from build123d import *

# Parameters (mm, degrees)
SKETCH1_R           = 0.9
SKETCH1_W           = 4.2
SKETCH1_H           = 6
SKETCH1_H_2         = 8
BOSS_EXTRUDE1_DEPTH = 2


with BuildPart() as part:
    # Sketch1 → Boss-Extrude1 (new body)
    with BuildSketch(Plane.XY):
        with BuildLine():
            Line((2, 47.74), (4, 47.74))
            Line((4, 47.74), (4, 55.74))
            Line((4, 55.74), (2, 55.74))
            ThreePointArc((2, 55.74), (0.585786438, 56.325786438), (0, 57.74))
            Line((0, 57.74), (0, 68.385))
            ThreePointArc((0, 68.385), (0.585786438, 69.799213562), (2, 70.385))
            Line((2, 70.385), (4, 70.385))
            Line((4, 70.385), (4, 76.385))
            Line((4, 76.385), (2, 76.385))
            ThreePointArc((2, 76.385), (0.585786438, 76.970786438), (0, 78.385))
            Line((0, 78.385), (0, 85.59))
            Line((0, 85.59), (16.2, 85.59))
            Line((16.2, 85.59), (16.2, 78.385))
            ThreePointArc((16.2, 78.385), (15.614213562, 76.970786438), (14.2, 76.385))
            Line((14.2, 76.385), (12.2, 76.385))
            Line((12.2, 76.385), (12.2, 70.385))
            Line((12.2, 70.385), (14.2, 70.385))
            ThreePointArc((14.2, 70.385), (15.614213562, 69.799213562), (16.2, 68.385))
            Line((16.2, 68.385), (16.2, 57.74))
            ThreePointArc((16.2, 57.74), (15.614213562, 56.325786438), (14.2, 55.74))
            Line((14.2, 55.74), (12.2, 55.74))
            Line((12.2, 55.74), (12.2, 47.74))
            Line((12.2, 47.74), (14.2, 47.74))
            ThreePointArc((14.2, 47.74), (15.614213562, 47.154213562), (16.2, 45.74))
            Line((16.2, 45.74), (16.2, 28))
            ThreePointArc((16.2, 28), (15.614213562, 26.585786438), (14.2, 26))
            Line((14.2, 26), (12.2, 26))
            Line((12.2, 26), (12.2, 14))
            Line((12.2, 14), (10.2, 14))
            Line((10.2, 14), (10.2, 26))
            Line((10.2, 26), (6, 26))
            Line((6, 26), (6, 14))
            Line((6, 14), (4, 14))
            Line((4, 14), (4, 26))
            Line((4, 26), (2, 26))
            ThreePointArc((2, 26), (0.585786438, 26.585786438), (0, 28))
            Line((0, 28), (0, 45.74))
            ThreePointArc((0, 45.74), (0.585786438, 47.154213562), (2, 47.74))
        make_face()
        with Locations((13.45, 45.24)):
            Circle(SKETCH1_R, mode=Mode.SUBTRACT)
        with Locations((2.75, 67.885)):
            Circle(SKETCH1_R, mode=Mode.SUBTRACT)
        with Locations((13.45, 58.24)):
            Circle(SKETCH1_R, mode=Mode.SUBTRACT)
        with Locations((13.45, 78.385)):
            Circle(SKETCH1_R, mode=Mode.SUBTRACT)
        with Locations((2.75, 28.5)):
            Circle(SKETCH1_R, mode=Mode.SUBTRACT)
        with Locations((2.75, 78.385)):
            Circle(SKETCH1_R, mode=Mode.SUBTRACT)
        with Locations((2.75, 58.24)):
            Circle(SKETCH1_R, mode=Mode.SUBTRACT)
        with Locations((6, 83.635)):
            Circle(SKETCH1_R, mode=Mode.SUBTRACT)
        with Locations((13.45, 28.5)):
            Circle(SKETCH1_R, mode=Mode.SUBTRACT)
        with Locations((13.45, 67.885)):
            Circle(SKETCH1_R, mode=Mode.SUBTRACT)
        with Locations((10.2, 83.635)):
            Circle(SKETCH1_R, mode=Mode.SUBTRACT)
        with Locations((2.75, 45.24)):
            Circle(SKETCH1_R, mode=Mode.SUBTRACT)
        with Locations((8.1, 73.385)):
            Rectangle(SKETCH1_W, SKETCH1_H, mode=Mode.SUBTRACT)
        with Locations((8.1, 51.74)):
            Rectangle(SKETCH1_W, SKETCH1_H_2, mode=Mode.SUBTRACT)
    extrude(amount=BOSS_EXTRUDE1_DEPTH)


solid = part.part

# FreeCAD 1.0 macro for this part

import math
import FreeCAD as App
import Part
import Sketcher

V = App.Vector

doc = App.newDocument("Part")
body = doc.addObject("PartDesign::Body", "Body")

# Sketch on XY plane
sketch1 = body.newObject("Sketcher::SketchObject", "Sketch")
sketch1.AttachmentSupport = (doc.getObject("XY_Plane"), [""])
sketch1.MapMode = "FlatFace"
sketch1.addGeometry([
    Part.LineSegment(V(4, 47.7, 0), V(2, 47.7, 0)),  # 0
    Part.ArcOfCircle(Part.Circle(V(2, 45.7, 0), V(0, 0, 1), 2), math.radians(90), math.radians(180)),  # 1
    Part.LineSegment(V(0, 45.7, 0), V(0, 28, 0)),  # 2
    Part.ArcOfCircle(Part.Circle(V(2, 28, 0), V(0, 0, 1), 2), math.radians(-180), math.radians(-90)),  # 3
    Part.LineSegment(V(2, 26, 0), V(4, 26, 0)),  # 4
    Part.LineSegment(V(4, 26, 0), V(4, 14, 0)),  # 5
    Part.LineSegment(V(4, 14, 0), V(6, 14, 0)),  # 6
    Part.LineSegment(V(6, 14, 0), V(6, 26, 0)),  # 7
    Part.LineSegment(V(6, 26, 0), V(10.2, 26, 0)),  # 8
    Part.LineSegment(V(10.2, 26, 0), V(10.2, 14, 0)),  # 9
    Part.LineSegment(V(10.2, 14, 0), V(12.2, 14, 0)),  # 10
    Part.LineSegment(V(12.2, 14, 0), V(12.2, 26, 0)),  # 11
    Part.LineSegment(V(12.2, 26, 0), V(14.2, 26, 0)),  # 12
    Part.ArcOfCircle(Part.Circle(V(14.2, 28, 0), V(0, 0, 1), 2), math.radians(-90), math.radians(0)),  # 13
    Part.LineSegment(V(16.2, 28, 0), V(16.2, 45.7, 0)),  # 14
    Part.ArcOfCircle(Part.Circle(V(14.2, 45.7, 0), V(0, 0, 1), 2), math.radians(0), math.radians(90)),  # 15
    Part.LineSegment(V(14.2, 47.7, 0), V(12.2, 47.7, 0)),  # 16
    Part.LineSegment(V(12.2, 47.7, 0), V(12.2, 55.7, 0)),  # 17
    Part.LineSegment(V(12.2, 55.7, 0), V(14.2, 55.7, 0)),  # 18
    Part.ArcOfCircle(Part.Circle(V(14.2, 57.7, 0), V(0, 0, 1), 2), math.radians(-90), math.radians(0)),  # 19
    Part.LineSegment(V(16.2, 57.7, 0), V(16.2, 68.4, 0)),  # 20
    Part.ArcOfCircle(Part.Circle(V(14.2, 68.4, 0), V(0, 0, 1), 2), math.radians(0), math.radians(90)),  # 21
    Part.LineSegment(V(14.2, 70.4, 0), V(12.2, 70.4, 0)),  # 22
    Part.LineSegment(V(12.2, 70.4, 0), V(12.2, 76.4, 0)),  # 23
    Part.LineSegment(V(12.2, 76.4, 0), V(14.2, 76.4, 0)),  # 24
    Part.ArcOfCircle(Part.Circle(V(14.2, 78.4, 0), V(0, 0, 1), 2), math.radians(-90), math.radians(0)),  # 25
    Part.LineSegment(V(16.2, 78.4, 0), V(16.2, 85.6, 0)),  # 26
    Part.LineSegment(V(16.2, 85.6, 0), V(0, 85.6, 0)),  # 27
    Part.LineSegment(V(0, 85.6, 0), V(0, 78.4, 0)),  # 28
    Part.ArcOfCircle(Part.Circle(V(2, 78.4, 0), V(0, 0, 1), 2), math.radians(-180), math.radians(-90)),  # 29
    Part.LineSegment(V(2, 76.4, 0), V(4, 76.4, 0)),  # 30
    Part.LineSegment(V(4, 76.4, 0), V(4, 70.4, 0)),  # 31
    Part.LineSegment(V(4, 70.4, 0), V(2, 70.4, 0)),  # 32
    Part.ArcOfCircle(Part.Circle(V(2, 68.4, 0), V(0, 0, 1), 2), math.radians(90), math.radians(180)),  # 33
    Part.LineSegment(V(0, 68.4, 0), V(0, 57.7, 0)),  # 34
    Part.ArcOfCircle(Part.Circle(V(2, 57.7, 0), V(0, 0, 1), 2), math.radians(-180), math.radians(-90)),  # 35
    Part.LineSegment(V(2, 55.7, 0), V(4, 55.7, 0)),  # 36
    Part.LineSegment(V(4, 55.7, 0), V(4, 47.7, 0)),  # 37
    Part.Circle(V(13.4, 28.5, 0), V(0, 0, 1), 0.9),  # 38
    Part.Circle(V(13.4, 45.2, 0), V(0, 0, 1), 0.9),  # 39
    Part.Circle(V(2.8, 28.5, 0), V(0, 0, 1), 0.9),  # 40
    Part.LineSegment(V(6, 47.7, 0), V(6, 55.7, 0)),  # 41
    Part.LineSegment(V(6, 55.7, 0), V(10.2, 55.7, 0)),  # 42
    Part.LineSegment(V(10.2, 55.7, 0), V(10.2, 47.7, 0)),  # 43
    Part.LineSegment(V(10.2, 47.7, 0), V(6, 47.7, 0)),  # 44
    Part.Circle(V(2.8, 45.2, 0), V(0, 0, 1), 0.9),  # 45
    Part.Circle(V(13.4, 58.2, 0), V(0, 0, 1), 0.9),  # 46
    Part.Circle(V(13.4, 67.9, 0), V(0, 0, 1), 0.9),  # 47
    Part.Circle(V(13.4, 78.4, 0), V(0, 0, 1), 0.9),  # 48
    Part.Circle(V(10.2, 83.6, 0), V(0, 0, 1), 0.9),  # 49
    Part.Circle(V(2.8, 58.2, 0), V(0, 0, 1), 0.9),  # 50
    Part.Circle(V(2.8, 67.9, 0), V(0, 0, 1), 0.9),  # 51
    Part.LineSegment(V(6, 70.4, 0), V(6, 76.4, 0)),  # 52
    Part.LineSegment(V(6, 76.4, 0), V(10.2, 76.4, 0)),  # 53
    Part.LineSegment(V(10.2, 76.4, 0), V(10.2, 70.4, 0)),  # 54
    Part.LineSegment(V(10.2, 70.4, 0), V(6, 70.4, 0)),  # 55
    Part.Circle(V(6, 83.6, 0), V(0, 0, 1), 0.9),  # 56
    Part.Circle(V(2.8, 78.4, 0), V(0, 0, 1), 0.9),  # 57
], False)
sketch1.addConstraint([
    Sketcher.Constraint("Tangent", 0, 2, 1, 1),
    Sketcher.Constraint("Tangent", 1, 2, 2, 1),
    Sketcher.Constraint("Tangent", 2, 2, 3, 1),
    Sketcher.Constraint("Tangent", 3, 2, 4, 1),
    Sketcher.Constraint("Coincident", 4, 2, 5, 1),
    Sketcher.Constraint("Coincident", 5, 2, 6, 1),
    Sketcher.Constraint("Coincident", 6, 2, 7, 1),
    Sketcher.Constraint("Coincident", 7, 2, 8, 1),
    Sketcher.Constraint("Coincident", 8, 2, 9, 1),
    Sketcher.Constraint("Coincident", 9, 2, 10, 1),
    Sketcher.Constraint("Coincident", 10, 2, 11, 1),
    Sketcher.Constraint("Coincident", 11, 2, 12, 1),
    Sketcher.Constraint("Tangent", 12, 2, 13, 1),
    Sketcher.Constraint("Tangent", 13, 2, 14, 1),
    Sketcher.Constraint("Tangent", 14, 2, 15, 1),
    Sketcher.Constraint("Tangent", 15, 2, 16, 1),
    Sketcher.Constraint("Coincident", 16, 2, 17, 1),
    Sketcher.Constraint("Coincident", 17, 2, 18, 1),
    Sketcher.Constraint("Tangent", 18, 2, 19, 1),
    Sketcher.Constraint("Tangent", 19, 2, 20, 1),
    Sketcher.Constraint("Tangent", 20, 2, 21, 1),
    Sketcher.Constraint("Tangent", 21, 2, 22, 1),
    Sketcher.Constraint("Coincident", 22, 2, 23, 1),
    Sketcher.Constraint("Coincident", 23, 2, 24, 1),
    Sketcher.Constraint("Tangent", 24, 2, 25, 1),
    Sketcher.Constraint("Tangent", 25, 2, 26, 1),
    Sketcher.Constraint("Coincident", 26, 2, 27, 1),
    Sketcher.Constraint("Coincident", 27, 2, 28, 1),
    Sketcher.Constraint("Tangent", 28, 2, 29, 1),
    Sketcher.Constraint("Tangent", 29, 2, 30, 1),
    Sketcher.Constraint("Coincident", 30, 2, 31, 1),
    Sketcher.Constraint("Coincident", 31, 2, 32, 1),
    Sketcher.Constraint("Tangent", 32, 2, 33, 1),
    Sketcher.Constraint("Tangent", 33, 2, 34, 1),
    Sketcher.Constraint("Tangent", 34, 2, 35, 1),
    Sketcher.Constraint("Tangent", 35, 2, 36, 1),
    Sketcher.Constraint("Coincident", 36, 2, 37, 1),
    Sketcher.Constraint("Coincident", 37, 2, 0, 1),
    Sketcher.Constraint("Coincident", 41, 2, 42, 1),
    Sketcher.Constraint("Coincident", 42, 2, 43, 1),
    Sketcher.Constraint("Coincident", 43, 2, 44, 1),
    Sketcher.Constraint("Coincident", 44, 2, 41, 1),
    Sketcher.Constraint("Coincident", 52, 2, 53, 1),
    Sketcher.Constraint("Coincident", 53, 2, 54, 1),
    Sketcher.Constraint("Coincident", 54, 2, 55, 1),
    Sketcher.Constraint("Coincident", 55, 2, 52, 1),
    Sketcher.Constraint("Horizontal", 0),
    Sketcher.Constraint("Vertical", 2),
    Sketcher.Constraint("Horizontal", 4),
    Sketcher.Constraint("Vertical", 5),
    Sketcher.Constraint("Horizontal", 6),
    Sketcher.Constraint("Vertical", 7),
    Sketcher.Constraint("Horizontal", 8),
    Sketcher.Constraint("Vertical", 9),
    Sketcher.Constraint("Horizontal", 10),
    Sketcher.Constraint("Vertical", 11),
    Sketcher.Constraint("Horizontal", 12),
    Sketcher.Constraint("Vertical", 14),
    Sketcher.Constraint("Horizontal", 16),
    Sketcher.Constraint("Vertical", 17),
    Sketcher.Constraint("Horizontal", 18),
    Sketcher.Constraint("Vertical", 20),
    Sketcher.Constraint("Horizontal", 22),
    Sketcher.Constraint("Vertical", 23),
    Sketcher.Constraint("Horizontal", 24),
    Sketcher.Constraint("Vertical", 26),
    Sketcher.Constraint("Horizontal", 27),
    Sketcher.Constraint("Vertical", 28),
    Sketcher.Constraint("Horizontal", 30),
    Sketcher.Constraint("Vertical", 31),
    Sketcher.Constraint("Horizontal", 32),
    Sketcher.Constraint("Vertical", 34),
    Sketcher.Constraint("Horizontal", 36),
    Sketcher.Constraint("Vertical", 37),
    Sketcher.Constraint("Vertical", 41),
    Sketcher.Constraint("Horizontal", 42),
    Sketcher.Constraint("Vertical", 43),
    Sketcher.Constraint("Horizontal", 44),
    Sketcher.Constraint("Vertical", 52),
    Sketcher.Constraint("Horizontal", 53),
    Sketcher.Constraint("Vertical", 54),
    Sketcher.Constraint("Horizontal", 55),
    Sketcher.Constraint("Equal", 1, 3),
    Sketcher.Constraint("Equal", 3, 13),
    Sketcher.Constraint("Equal", 13, 15),
    Sketcher.Constraint("Equal", 15, 19),
    Sketcher.Constraint("Equal", 19, 21),
    Sketcher.Constraint("Equal", 21, 25),
    Sketcher.Constraint("Equal", 25, 29),
    Sketcher.Constraint("Equal", 29, 33),
    Sketcher.Constraint("Equal", 33, 35),
    Sketcher.Constraint("Equal", 38, 39),
    Sketcher.Constraint("Equal", 39, 40),
    Sketcher.Constraint("Equal", 40, 45),
    Sketcher.Constraint("Equal", 45, 46),
    Sketcher.Constraint("Equal", 46, 47),
    Sketcher.Constraint("Equal", 47, 48),
    Sketcher.Constraint("Equal", 48, 49),
    Sketcher.Constraint("Equal", 49, 50),
    Sketcher.Constraint("Equal", 50, 51),
    Sketcher.Constraint("Equal", 51, 56),
    Sketcher.Constraint("Equal", 56, 57),
    Sketcher.Constraint("PointOnObject", 1, 2, -2),
    Sketcher.Constraint("PointOnObject", 27, 2, -2),
    Sketcher.Constraint("PointOnObject", 33, 2, -2),
    Sketcher.Constraint("Horizontal", 3, 3, 13, 3),
    Sketcher.Constraint("Horizontal", 1, 3, 15, 3),
    Sketcher.Constraint("Horizontal", 25, 3, 29, 3),
    Sketcher.Constraint("Horizontal", 21, 3, 33, 3),
    Sketcher.Constraint("Horizontal", 19, 3, 35, 3),
    Sketcher.Constraint("Horizontal", 38, 3, 40, 3),
    Sketcher.Constraint("Horizontal", 39, 3, 45, 3),
    Sketcher.Constraint("Horizontal", 29, 3, 48, 3),
    Sketcher.Constraint("Horizontal", 46, 3, 50, 3),
    Sketcher.Constraint("Horizontal", 47, 3, 51, 3),
    Sketcher.Constraint("Horizontal", 49, 3, 56, 3),
    Sketcher.Constraint("Horizontal", 48, 3, 57, 3),
    Sketcher.Constraint("Horizontal", 4, 2, 7, 2),
    Sketcher.Constraint("Horizontal", 6, 2, 9, 2),
    Sketcher.Constraint("Horizontal", 36, 2, 41, 2),
    Sketcher.Constraint("Horizontal", 37, 2, 43, 2),
    Sketcher.Constraint("Horizontal", 30, 2, 52, 2),
    Sketcher.Constraint("Horizontal", 32, 2, 54, 2),
    Sketcher.Constraint("Vertical", 15, 3, 19, 3),
    Sketcher.Constraint("Vertical", 21, 3, 25, 3),
    Sketcher.Constraint("Vertical", 38, 3, 39, 3),
    Sketcher.Constraint("Vertical", 40, 3, 45, 3),
    Sketcher.Constraint("Vertical", 39, 3, 46, 3),
    Sketcher.Constraint("Vertical", 46, 3, 47, 3),
    Sketcher.Constraint("Vertical", 47, 3, 48, 3),
    Sketcher.Constraint("Vertical", 45, 3, 50, 3),
    Sketcher.Constraint("Vertical", 50, 3, 51, 3),
    Sketcher.Constraint("Vertical", 51, 3, 57, 3),
    Sketcher.Constraint("Vertical", 56, 3, 6, 2),
    Sketcher.Constraint("Vertical", 49, 3, 8, 2),
    Sketcher.Constraint("Vertical", 11, 2, 16, 2),
    Sketcher.Constraint("Vertical", 17, 2, 22, 2),
    Sketcher.Constraint("Vertical", 5, 2, 30, 2),
    Sketcher.Constraint("Vertical", 31, 2, 36, 2),
    Sketcher.Constraint("Vertical", 7, 2, 41, 2),
    Sketcher.Constraint("Vertical", 9, 2, 42, 2),
    Sketcher.Constraint("Vertical", 44, 2, 52, 2),
    Sketcher.Constraint("Vertical", 43, 2, 53, 2),
    Sketcher.Constraint("Equal", 4, 6),
    Sketcher.Constraint("Equal", 6, 10),
    Sketcher.Constraint("Equal", 10, 12),
    Sketcher.Constraint("Radius", 1, 2.0),
    Sketcher.Constraint("Diameter", 38, 1.8),
    Sketcher.Constraint("DistanceX", 0, 2, 0, 1, 2.0),
    Sketcher.Constraint("DistanceY", 5, 2, 5, 1, 12.0),
    Sketcher.Constraint("DistanceY", 17, 1, 17, 2, 8.0),
    Sketcher.Constraint("DistanceY", 23, 1, 23, 2, 6.0),
    Sketcher.Constraint("DistanceX", 8, 1, 8, 2, 4.2),
    Sketcher.Constraint("DistanceY", -1, 1, 3, 3, 28.0),
    Sketcher.Constraint("DistanceY", 2, 2, 2, 1, 17.74),
    Sketcher.Constraint("DistanceY", -1, 1, 38, 3, 28.5),
    Sketcher.Constraint("DistanceY", 20, 1, 20, 2, 10.645),
    Sketcher.Constraint("DistanceY", 26, 1, 26, 2, 7.205),
    Sketcher.Constraint("DistanceX", -1, 1, 38, 3, 13.45),
    Sketcher.Constraint("DistanceY", -1, 1, 39, 3, 45.24),
    Sketcher.Constraint("DistanceX", -1, 1, 40, 3, 2.75),
    Sketcher.Constraint("DistanceY", -1, 1, 46, 3, 58.24),
    Sketcher.Constraint("DistanceY", -1, 1, 47, 3, 67.885),
    Sketcher.Constraint("DistanceY", -1, 1, 49, 3, 83.635),
])
pad1 = body.newObject("PartDesign::Pad", "Pad")
pad1.Profile = sketch1
pad1.Length = 2

doc.recompute()
